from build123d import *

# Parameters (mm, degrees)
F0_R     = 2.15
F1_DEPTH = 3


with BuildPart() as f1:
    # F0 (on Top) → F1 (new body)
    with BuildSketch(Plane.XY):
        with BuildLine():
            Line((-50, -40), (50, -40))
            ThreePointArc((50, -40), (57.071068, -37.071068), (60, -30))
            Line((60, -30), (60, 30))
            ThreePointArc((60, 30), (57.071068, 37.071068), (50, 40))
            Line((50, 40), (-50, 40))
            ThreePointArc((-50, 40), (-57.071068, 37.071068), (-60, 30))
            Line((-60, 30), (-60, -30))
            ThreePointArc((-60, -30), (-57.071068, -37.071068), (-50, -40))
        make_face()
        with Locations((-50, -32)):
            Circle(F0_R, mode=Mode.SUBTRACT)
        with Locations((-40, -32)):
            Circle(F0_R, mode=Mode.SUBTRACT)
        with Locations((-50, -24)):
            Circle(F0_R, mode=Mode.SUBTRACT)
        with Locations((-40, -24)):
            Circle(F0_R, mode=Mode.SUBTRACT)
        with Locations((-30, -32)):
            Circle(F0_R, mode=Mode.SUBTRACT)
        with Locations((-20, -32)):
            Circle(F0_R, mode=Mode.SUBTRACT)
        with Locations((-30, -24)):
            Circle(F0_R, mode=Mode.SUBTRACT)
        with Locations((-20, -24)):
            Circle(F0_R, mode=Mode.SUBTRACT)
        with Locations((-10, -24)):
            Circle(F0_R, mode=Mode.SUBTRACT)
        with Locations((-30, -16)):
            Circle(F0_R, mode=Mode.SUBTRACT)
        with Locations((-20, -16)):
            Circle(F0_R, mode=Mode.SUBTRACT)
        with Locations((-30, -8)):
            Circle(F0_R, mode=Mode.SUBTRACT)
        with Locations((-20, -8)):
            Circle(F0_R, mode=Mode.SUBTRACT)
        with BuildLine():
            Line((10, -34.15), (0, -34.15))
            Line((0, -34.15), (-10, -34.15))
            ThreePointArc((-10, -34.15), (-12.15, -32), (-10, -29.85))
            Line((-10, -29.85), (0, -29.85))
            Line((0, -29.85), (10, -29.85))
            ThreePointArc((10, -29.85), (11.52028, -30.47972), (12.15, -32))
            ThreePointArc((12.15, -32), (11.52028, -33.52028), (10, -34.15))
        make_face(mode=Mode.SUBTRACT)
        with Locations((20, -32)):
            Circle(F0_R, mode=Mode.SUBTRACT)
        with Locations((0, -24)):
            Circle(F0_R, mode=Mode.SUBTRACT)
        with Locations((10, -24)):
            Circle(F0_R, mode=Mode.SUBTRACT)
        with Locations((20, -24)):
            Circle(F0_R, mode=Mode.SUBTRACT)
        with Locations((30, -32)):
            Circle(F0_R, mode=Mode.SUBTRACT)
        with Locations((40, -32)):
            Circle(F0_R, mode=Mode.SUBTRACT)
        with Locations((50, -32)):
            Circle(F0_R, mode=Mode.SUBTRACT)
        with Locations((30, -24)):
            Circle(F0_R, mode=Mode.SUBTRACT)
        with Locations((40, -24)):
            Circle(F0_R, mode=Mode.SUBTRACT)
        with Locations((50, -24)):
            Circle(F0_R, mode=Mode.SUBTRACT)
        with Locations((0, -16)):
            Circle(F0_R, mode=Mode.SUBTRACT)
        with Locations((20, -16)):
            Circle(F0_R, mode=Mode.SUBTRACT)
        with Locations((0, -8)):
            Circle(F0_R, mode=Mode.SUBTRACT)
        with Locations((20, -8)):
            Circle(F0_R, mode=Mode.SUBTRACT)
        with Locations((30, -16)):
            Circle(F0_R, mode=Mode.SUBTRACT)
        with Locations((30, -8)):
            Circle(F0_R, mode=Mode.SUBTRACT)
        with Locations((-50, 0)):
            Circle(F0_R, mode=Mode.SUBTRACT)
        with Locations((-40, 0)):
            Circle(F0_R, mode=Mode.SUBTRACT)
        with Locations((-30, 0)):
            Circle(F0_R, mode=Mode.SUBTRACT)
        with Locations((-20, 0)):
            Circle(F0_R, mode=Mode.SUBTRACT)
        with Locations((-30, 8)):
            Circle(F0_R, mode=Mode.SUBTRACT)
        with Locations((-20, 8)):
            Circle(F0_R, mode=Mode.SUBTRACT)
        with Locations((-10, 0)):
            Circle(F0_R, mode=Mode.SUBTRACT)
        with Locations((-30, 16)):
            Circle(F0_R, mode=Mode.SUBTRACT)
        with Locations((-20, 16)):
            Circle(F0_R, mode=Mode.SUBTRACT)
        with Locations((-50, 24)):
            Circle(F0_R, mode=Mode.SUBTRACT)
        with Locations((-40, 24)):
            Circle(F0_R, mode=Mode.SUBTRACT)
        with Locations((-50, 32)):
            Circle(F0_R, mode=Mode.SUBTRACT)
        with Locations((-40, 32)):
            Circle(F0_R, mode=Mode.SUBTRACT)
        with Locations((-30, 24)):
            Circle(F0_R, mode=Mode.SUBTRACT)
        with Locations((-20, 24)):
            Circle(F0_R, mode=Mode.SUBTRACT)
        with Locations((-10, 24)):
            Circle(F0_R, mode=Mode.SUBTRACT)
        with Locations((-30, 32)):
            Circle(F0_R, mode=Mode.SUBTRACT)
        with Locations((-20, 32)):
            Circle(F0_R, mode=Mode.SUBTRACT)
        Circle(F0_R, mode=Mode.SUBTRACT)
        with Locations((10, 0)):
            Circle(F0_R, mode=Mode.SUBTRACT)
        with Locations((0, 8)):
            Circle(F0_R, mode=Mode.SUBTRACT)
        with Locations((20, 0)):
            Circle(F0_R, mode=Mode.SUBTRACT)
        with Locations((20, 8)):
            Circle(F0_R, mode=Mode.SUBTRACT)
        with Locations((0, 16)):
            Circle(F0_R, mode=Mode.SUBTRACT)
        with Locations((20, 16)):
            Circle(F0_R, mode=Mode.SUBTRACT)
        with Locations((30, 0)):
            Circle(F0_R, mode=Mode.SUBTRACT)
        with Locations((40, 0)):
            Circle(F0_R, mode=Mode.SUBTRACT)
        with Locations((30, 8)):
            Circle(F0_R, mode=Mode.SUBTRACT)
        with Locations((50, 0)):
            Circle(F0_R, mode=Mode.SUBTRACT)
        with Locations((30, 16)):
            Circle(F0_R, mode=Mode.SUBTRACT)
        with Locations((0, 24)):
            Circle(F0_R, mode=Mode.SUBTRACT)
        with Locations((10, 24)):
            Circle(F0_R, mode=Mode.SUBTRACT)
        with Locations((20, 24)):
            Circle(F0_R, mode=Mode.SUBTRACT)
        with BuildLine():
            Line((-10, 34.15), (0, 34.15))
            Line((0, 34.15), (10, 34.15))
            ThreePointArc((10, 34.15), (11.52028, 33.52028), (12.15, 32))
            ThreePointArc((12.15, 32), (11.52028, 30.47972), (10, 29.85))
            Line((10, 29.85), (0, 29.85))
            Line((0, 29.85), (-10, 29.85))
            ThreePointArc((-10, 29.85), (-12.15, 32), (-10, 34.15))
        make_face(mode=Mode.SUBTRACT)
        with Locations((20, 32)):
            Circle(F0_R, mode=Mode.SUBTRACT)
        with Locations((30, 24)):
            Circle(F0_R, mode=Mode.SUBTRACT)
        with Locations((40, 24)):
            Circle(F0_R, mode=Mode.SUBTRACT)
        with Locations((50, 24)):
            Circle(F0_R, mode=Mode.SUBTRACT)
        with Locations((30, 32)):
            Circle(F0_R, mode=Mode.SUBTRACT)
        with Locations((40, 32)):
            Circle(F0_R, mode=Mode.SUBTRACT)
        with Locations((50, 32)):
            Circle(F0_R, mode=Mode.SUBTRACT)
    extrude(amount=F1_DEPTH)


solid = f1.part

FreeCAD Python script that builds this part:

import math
import FreeCAD as App
import Part
import Sketcher
from FreeCAD import Vector

doc = App.newDocument("Part")
params = doc.addObject("Spreadsheet::Sheet", "Params")
for row, (alias, value) in enumerate([
    ("sketch1_radius", "9.999999 mm"),
    ("sketch1_diameter", "4.3 mm"),
    ("sketch1_width", "100 mm"),
    ("sketch1_width2", "20 mm"),
    ("sketch1_height", "60 mm"),
    ("pad1_length", "3 mm"),
], start=1):
    params.set(f"A{row}", alias)
    params.set(f"B{row}", "=" + value)
    params.setAlias(f"B{row}", alias)

body = doc.addObject("PartDesign::Body", "Body")

# Sketch on XY plane
sketch1 = doc.addObject("Sketcher::SketchObject", "Sketch")
body.addObject(sketch1)
sketch1.AttachmentSupport = (doc.XY_Plane, [""])
sketch1.MapMode = "FlatFace"
sketch1.addGeometry([
    Part.LineSegment(Vector(-50, -40, 0), Vector(50, -40, 0)),  # 0
    Part.ArcOfCircle(Part.Circle(Vector(50, -30, 0), Vector(0, 0, 1), 10), math.radians(-90), math.radians(0)),  # 1
    Part.LineSegment(Vector(60, -30, 0), Vector(60, 30, 0)),  # 2
    Part.ArcOfCircle(Part.Circle(Vector(50, 30, 0), Vector(0, 0, 1), 10), math.radians(0), math.radians(90)),  # 3
    Part.LineSegment(Vector(50, 40, 0), Vector(-50, 40, 0)),  # 4
    Part.ArcOfCircle(Part.Circle(Vector(-50, 30, 0), Vector(0, 0, 1), 10), math.radians(90), math.radians(180)),  # 5
    Part.LineSegment(Vector(-60, 30, 0), Vector(-60, -30, 0)),  # 6
    Part.ArcOfCircle(Part.Circle(Vector(-50, -30, 0), Vector(0, 0, 1), 10), math.radians(180), math.radians(270)),  # 7
    Part.Circle(Vector(-50, -32, 0), Vector(0, 0, 1), 2.1),  # 8
    Part.Circle(Vector(-40, -32, 0), Vector(0, 0, 1), 2.1),  # 9
    Part.Circle(Vector(-30, -32, 0), Vector(0, 0, 1), 2.1),  # 10
    Part.Circle(Vector(-50, -24, 0), Vector(0, 0, 1), 2.1),  # 11
    Part.Circle(Vector(-40, -24, 0), Vector(0, 0, 1), 2.1),  # 12
    Part.Circle(Vector(-30, -24, 0), Vector(0, 0, 1), 2.1),  # 13
    Part.Circle(Vector(-20, -32, 0), Vector(0, 0, 1), 2.1),  # 14
    Part.Circle(Vector(-20, -24, 0), Vector(0, 0, 1), 2.1),  # 15
    Part.Circle(Vector(-10, -24, 0), Vector(0, 0, 1), 2.1),  # 16
    Part.Circle(Vector(-30, -16, 0), Vector(0, 0, 1), 2.1),  # 17
    Part.Circle(Vector(-30, -8, 0), Vector(0, 0, 1), 2.1),  # 18
    Part.Circle(Vector(-20, -16, 0), Vector(0, 0, 1), 2.1),  # 19
    Part.Circle(Vector(-20, -8, 0), Vector(0, 0, 1), 2.1),  # 20
    Part.ArcOfCircle(Part.Circle(Vector(10, -32, 0), Vector(0, 0, 1), 2.1), math.radians(-90), math.radians(0)),  # 21
    Part.LineSegment(Vector(10, -34.1, 0), Vector(-10, -34.1, 0)),  # 22
    Part.ArcOfCircle(Part.Circle(Vector(-10, -32, 0), Vector(0, 0, 1), 2.1), math.radians(90), math.radians(270)),  # 23
    Part.LineSegment(Vector(-10, -29.9, 0), Vector(10, -29.9, 0)),  # 24
    Part.ArcOfCircle(Part.Circle(Vector(10, -32, 0), Vector(0, 0, 1), 2.1), math.radians(0), math.radians(90)),  # 25
    Part.Circle(Vector(20, -32, 0), Vector(0, 0, 1), 2.1),  # 26
    Part.Circle(Vector(0, -24, 0), Vector(0, 0, 1), 2.1),  # 27
    Part.Circle(Vector(10, -24, 0), Vector(0, 0, 1), 2.1),  # 28
    Part.Circle(Vector(20, -24, 0), Vector(0, 0, 1), 2.1),  # 29
    Part.Circle(Vector(30, -32, 0), Vector(0, 0, 1), 2.1),  # 30
    Part.Circle(Vector(40, -32, 0), Vector(0, 0, 1), 2.1),  # 31
    Part.Circle(Vector(50, -32, 0), Vector(0, 0, 1), 2.1),  # 32
    Part.Circle(Vector(30, -24, 0), Vector(0, 0, 1), 2.1),  # 33
    Part.Circle(Vector(40, -24, 0), Vector(0, 0, 1), 2.1),  # 34
    Part.Circle(Vector(50, -24, 0), Vector(0, 0, 1), 2.1),  # 35
    Part.Circle(Vector(0, -16, 0), Vector(0, 0, 1), 2.1),  # 36
    Part.Circle(Vector(20, -16, 0), Vector(0, 0, 1), 2.1),  # 37
    Part.Circle(Vector(0, -8, 0), Vector(0, 0, 1), 2.1),  # 38
    Part.Circle(Vector(20, -8, 0), Vector(0, 0, 1), 2.1),  # 39
    Part.Circle(Vector(30, -16, 0), Vector(0, 0, 1), 2.1),  # 40
    Part.Circle(Vector(30, -8, 0), Vector(0, 0, 1), 2.1),  # 41
    Part.Circle(Vector(-50, 0, 0), Vector(0, 0, 1), 2.1),  # 42
    Part.Circle(Vector(-40, 0, 0), Vector(0, 0, 1), 2.1),  # 43
    Part.Circle(Vector(-30, 0, 0), Vector(0, 0, 1), 2.1),  # 44
    Part.Circle(Vector(-30, 8, 0), Vector(0, 0, 1), 2.1),  # 45
    Part.Circle(Vector(-30, 16, 0), Vector(0, 0, 1), 2.1),  # 46
    Part.Circle(Vector(-20, 0, 0), Vector(0, 0, 1), 2.1),  # 47
    Part.Circle(Vector(-20, 8, 0), Vector(0, 0, 1), 2.1),  # 48
    Part.Circle(Vector(-10, 0, 0), Vector(0, 0, 1), 2.1),  # 49
    Part.Circle(Vector(-20, 16, 0), Vector(0, 0, 1), 2.1),  # 50
    Part.Circle(Vector(-50, 24, 0), Vector(0, 0, 1), 2.1),  # 51
    Part.Circle(Vector(-40, 24, 0), Vector(0, 0, 1), 2.1),  # 52
    Part.Circle(Vector(-30, 24, 0), Vector(0, 0, 1), 2.1),  # 53
    Part.Circle(Vector(-50, 32, 0), Vector(0, 0, 1), 2.1),  # 54
    Part.Circle(Vector(-40, 32, 0), Vector(0, 0, 1), 2.1),  # 55
    Part.Circle(Vector(-30, 32, 0), Vector(0, 0, 1), 2.1),  # 56
    Part.Circle(Vector(-20, 24, 0), Vector(0, 0, 1), 2.1),  # 57
    Part.Circle(Vector(-10, 24, 0), Vector(0, 0, 1), 2.1),  # 58
    Part.Circle(Vector(-20, 32, 0), Vector(0, 0, 1), 2.1),  # 59
    Part.Circle(Vector(0, 0, 0), Vector(0, 0, 1), 2.1),  # 60
    Part.Circle(Vector(10, 0, 0), Vector(0, 0, 1), 2.1),  # 61
    Part.Circle(Vector(0, 8, 0), Vector(0, 0, 1), 2.1),  # 62
    Part.Circle(Vector(20, 0, 0), Vector(0, 0, 1), 2.1),  # 63
    Part.Circle(Vector(20, 8, 0), Vector(0, 0, 1), 2.1),  # 64
    Part.Circle(Vector(0, 16, 0), Vector(0, 0, 1), 2.1),  # 65
    Part.Circle(Vector(20, 16, 0), Vector(0, 0, 1), 2.1),  # 66
    Part.Circle(Vector(30, 0, 0), Vector(0, 0, 1), 2.1),  # 67
    Part.Circle(Vector(30, 8, 0), Vector(0, 0, 1), 2.1),  # 68
    Part.Circle(Vector(40, 0, 0), Vector(0, 0, 1), 2.1),  # 69
    Part.Circle(Vector(50, 0, 0), Vector(0, 0, 1), 2.1),  # 70
    Part.Circle(Vector(30, 16, 0), Vector(0, 0, 1), 2.1),  # 71
    Part.Circle(Vector(0, 24, 0), Vector(0, 0, 1), 2.1),  # 72
    Part.Circle(Vector(10, 24, 0), Vector(0, 0, 1), 2.1),  # 73
    Part.Circle(Vector(20, 24, 0), Vector(0, 0, 1), 2.1),  # 74
    Part.ArcOfCircle(Part.Circle(Vector(-10, 32, 0), Vector(0, 0, 1), 2.1), math.radians(90), math.radians(270)),  # 75
    Part.LineSegment(Vector(-10, 34.1, 0), Vector(10, 34.1, 0)),  # 76
    Part.ArcOfCircle(Part.Circle(Vector(10, 32, 0), Vector(0, 0, 1), 2.1), math.radians(0), math.radians(90)),  # 77
    Part.ArcOfCircle(Part.Circle(Vector(10, 32, 0), Vector(0, 0, 1), 2.1), math.radians(-90), math.radians(0)),  # 78
    Part.LineSegment(Vector(10, 29.9, 0), Vector(-10, 29.9, 0)),  # 79
    Part.Circle(Vector(20, 32, 0), Vector(0, 0, 1), 2.1),  # 80
    Part.Circle(Vector(30, 24, 0), Vector(0, 0, 1), 2.1),  # 81
    Part.Circle(Vector(40, 24, 0), Vector(0, 0, 1), 2.1),  # 82
    Part.Circle(Vector(50, 24, 0), Vector(0, 0, 1), 2.1),  # 83
    Part.Circle(Vector(30, 32, 0), Vector(0, 0, 1), 2.1),  # 84
    Part.Circle(Vector(40, 32, 0), Vector(0, 0, 1), 2.1),  # 85
    Part.Circle(Vector(50, 32, 0), Vector(0, 0, 1), 2.1),  # 86
], False)
sketch1.addConstraint([
    Sketcher.Constraint("Tangent", 0, 2, 1, 1),
    Sketcher.Constraint("Tangent", 1, 2, 2, 1),
    Sketcher.Constraint("Tangent", 2, 2, 3, 1),
    Sketcher.Constraint("Tangent", 3, 2, 4, 1),
    Sketcher.Constraint("Tangent", 4, 2, 5, 1),
    Sketcher.Constraint("Tangent", 5, 2, 6, 1),
    Sketcher.Constraint("Tangent", 6, 2, 7, 1),
    Sketcher.Constraint("Tangent", 7, 2, 0, 1),
    Sketcher.Constraint("Tangent", 21, 1, 22, 1),
    Sketcher.Constraint("Tangent", 22, 2, 23, 2),
    Sketcher.Constraint("Tangent", 23, 1, 24, 1),
    Sketcher.Constraint("Tangent", 24, 2, 25, 2),
    Sketcher.Constraint("Tangent", 25, 1, 21, 2),
    Sketcher.Constraint("Tangent", 75, 1, 76, 1),
    Sketcher.Constraint("Tangent", 76, 2, 77, 2),
    Sketcher.Constraint("Tangent", 77, 1, 78, 2),
    Sketcher.Constraint("Tangent", 78, 1, 79, 1),
    Sketcher.Constraint("Tangent", 79, 2, 75, 2),
    Sketcher.Constraint("Horizontal", 0),
    Sketcher.Constraint("Vertical", 2),
    Sketcher.Constraint("Horizontal", 4),
    Sketcher.Constraint("Vertical", 6),
    Sketcher.Constraint("Horizontal", 22),
    Sketcher.Constraint("Horizontal", 24),
    Sketcher.Constraint("Horizontal", 76),
    Sketcher.Constraint("Horizontal", 79),
    Sketcher.Constraint("Coincident", 60, 3, -1, 1),
    Sketcher.Constraint("Equal", 1, 3),
    Sketcher.Constraint("Equal", 3, 5),
    Sketcher.Constraint("Equal", 5, 7),
    Sketcher.Constraint("Equal", 8, 9),
    Sketcher.Constraint("Equal", 9, 10),
    Sketcher.Constraint("Equal", 10, 11),
    Sketcher.Constraint("Equal", 11, 12),
    Sketcher.Constraint("Equal", 12, 13),
    Sketcher.Constraint("Equal", 13, 14),
    Sketcher.Constraint("Equal", 14, 15),
    Sketcher.Constraint("Equal", 15, 16),
    Sketcher.Constraint("Equal", 16, 17),
    Sketcher.Constraint("Equal", 17, 18),
    Sketcher.Constraint("Equal", 18, 19),
    Sketcher.Constraint("Equal", 19, 20),
    Sketcher.Constraint("Equal", 20, 21),
    Sketcher.Constraint("Equal", 21, 23),
    Sketcher.Constraint("Equal", 25, 26),
    Sketcher.Constraint("Equal", 26, 27),
    Sketcher.Constraint("Equal", 27, 28),
    Sketcher.Constraint("Equal", 28, 29),
    Sketcher.Constraint("Equal", 29, 30),
    Sketcher.Constraint("Equal", 30, 31),
    Sketcher.Constraint("Equal", 31, 32),
    Sketcher.Constraint("Equal", 32, 33),
    Sketcher.Constraint("Equal", 33, 34),
    Sketcher.Constraint("Equal", 34, 35),
    Sketcher.Constraint("Equal", 35, 36),
    Sketcher.Constraint("Equal", 36, 37),
    Sketcher.Constraint("Equal", 37, 38),
    Sketcher.Constraint("Equal", 38, 39),
    Sketcher.Constraint("Equal", 39, 40),
    Sketcher.Constraint("Equal", 40, 41),
    Sketcher.Constraint("Equal", 41, 42),
    Sketcher.Constraint("Equal", 42, 43),
    Sketcher.Constraint("Equal", 43, 44),
    Sketcher.Constraint("Equal", 44, 45),
    Sketcher.Constraint("Equal", 45, 46),
    Sketcher.Constraint("Equal", 46, 47),
    Sketcher.Constraint("Equal", 47, 48),
    Sketcher.Constraint("Equal", 48, 49),
    Sketcher.Constraint("Equal", 49, 50),
    Sketcher.Constraint("Equal", 50, 51),
    Sketcher.Constraint("Equal", 51, 52),
    Sketcher.Constraint("Equal", 52, 53),
    Sketcher.Constraint("Equal", 53, 54),
    Sketcher.Constraint("Equal", 54, 55),
    Sketcher.Constraint("Equal", 55, 56),
    Sketcher.Constraint("Equal", 56, 57),
    Sketcher.Constraint("Equal", 57, 58),
    Sketcher.Constraint("Equal", 58, 59),
    Sketcher.Constraint("Equal", 59, 60),
    Sketcher.Constraint("Equal", 60, 61),
    Sketcher.Constraint("Equal", 61, 62),
    Sketcher.Constraint("Equal", 62, 63),
    Sketcher.Constraint("Equal", 63, 64),
    Sketcher.Constraint("Equal", 64, 65),
    Sketcher.Constraint("Equal", 65, 66),
    Sketcher.Constraint("Equal", 66, 67),
    Sketcher.Constraint("Equal", 67, 68),
    Sketcher.Constraint("Equal", 68, 69),
    Sketcher.Constraint("Equal", 69, 70),
    Sketcher.Constraint("Equal", 70, 71),
    Sketcher.Constraint("Equal", 71, 72),
    Sketcher.Constraint("Equal", 72, 73),
    Sketcher.Constraint("Equal", 73, 74),
    Sketcher.Constraint("Equal", 74, 75),
    Sketcher.Constraint("Equal", 75, 77),
    Sketcher.Constraint("Equal", 78, 80),
    Sketcher.Constraint("Equal", 80, 81),
    Sketcher.Constraint("Equal", 81, 82),
    Sketcher.Constraint("Equal", 82, 83),
    Sketcher.Constraint("Equal", 83, 84),
    Sketcher.Constraint("Equal", 84, 85),
    Sketcher.Constraint("Equal", 85, 86),
    Sketcher.Constraint("Symmetric", 1, 3, 5, 3, -1, 1),
    Sketcher.Constraint("Symmetric", 41, 3, 45, 3, -1, 1),
    Sketcher.Constraint("Symmetric", 40, 3, 46, 3, -1, 1),
    Sketcher.Constraint("Symmetric", 39, 3, 48, 3, -1, 1),
    Sketcher.Constraint("Symmetric", 37, 3, 50, 3, -1, 1),
    Sketcher.Constraint("Symmetric", 35, 3, 51, 3, -1, 1),
    Sketcher.Constraint("Symmetric", 34, 3, 52, 3, -1, 1),
    Sketcher.Constraint("Symmetric", 33, 3, 53, 3, -1, 1),
    Sketcher.Constraint("Symmetric", 32, 3, 54, 3, -1, 1),
    Sketcher.Constraint("Symmetric", 31, 3, 55, 3, -1, 1),
    Sketcher.Constraint("Symmetric", 30, 3, 56, 3, -1, 1),
    Sketcher.Constraint("Symmetric", 29, 3, 57, 3, -1, 1),
    Sketcher.Constraint("Symmetric", 28, 3, 58, 3, -1, 1),
    Sketcher.Constraint("Symmetric", 26, 3, 59, 3, -1, 1),
    Sketcher.Constraint("Symmetric", 49, 3, 61, 3, -1, 1),
    Sketcher.Constraint("Symmetric", 38, 3, 62, 3, -1, 1),
    Sketcher.Constraint("Symmetric", 47, 3, 63, 3, -1, 1),
    Sketcher.Constraint("Symmetric", 20, 3, 64, 3, -1, 1),
    Sketcher.Constraint("Symmetric", 36, 3, 65, 3, -1, 1),
    Sketcher.Constraint("Symmetric", 19, 3, 66, 3, -1, 1),
    Sketcher.Constraint("Symmetric", 44, 3, 67, 3, -1, 1),
    Sketcher.Constraint("Symmetric", 18, 3, 68, 3, -1, 1),
    Sketcher.Constraint("Symmetric", 43, 3, 69, 3, -1, 1),
    Sketcher.Constraint("Symmetric", 42, 3, 70, 3, -1, 1),
    Sketcher.Constraint("Symmetric", 17, 3, 71, 3, -1, 1),
    Sketcher.Constraint("Symmetric", 27, 3, 72, 3, -1, 1),
    Sketcher.Constraint("Symmetric", 16, 3, 73, 3, -1, 1),
    Sketcher.Constraint("Symmetric", 15, 3, 74, 3, -1, 1),
    Sketcher.Constraint("Symmetric", 21, 3, 75, 3, -1, 1),
    Sketcher.Constraint("Symmetric", 14, 3, 80, 3, -1, 1),
    Sketcher.Constraint("Symmetric", 13, 3, 81, 3, -1, 1),
    Sketcher.Constraint("Symmetric", 12, 3, 82, 3, -1, 1),
    Sketcher.Constraint("Symmetric", 11, 3, 83, 3, -1, 1),
    Sketcher.Constraint("Symmetric", 10, 3, 84, 3, -1, 1),
    Sketcher.Constraint("Symmetric", 9, 3, 85, 3, -1, 1),
    Sketcher.Constraint("Symmetric", 8, 3, 86, 3, -1, 1),
    Sketcher.Constraint("Symmetric", 14, 3, 26, 3, -2),
    Sketcher.Constraint("Symmetric", 16, 3, 28, 3, -2),
    Sketcher.Constraint("Symmetric", 15, 3, 29, 3, -2),
    Sketcher.Constraint("Symmetric", 10, 3, 30, 3, -2),
    Sketcher.Constraint("Symmetric", 9, 3, 31, 3, -2),
    Sketcher.Constraint("Symmetric", 8, 3, 32, 3, -2),
    Sketcher.Constraint("Symmetric", 13, 3, 33, 3, -2),
    Sketcher.Constraint("Symmetric", 12, 3, 34, 3, -2),
    Sketcher.Constraint("Symmetric", 11, 3, 35, 3, -2),
    Sketcher.Constraint("Symmetric", 19, 3, 37, 3, -2),
    Sketcher.Constraint("Symmetric", 20, 3, 39, 3, -2),
    Sketcher.Constraint("Symmetric", 17, 3, 40, 3, -2),
    Sketcher.Constraint("Symmetric", 18, 3, 41, 3, -2),
    Sketcher.Constraint("Symmetric", 25, 1, 77, 1, -1),
    Sketcher.Constraint("PointOnObject", 27, 3, -2),
    Sketcher.Constraint("PointOnObject", 36, 3, -2),
    Sketcher.Constraint("PointOnObject", 38, 3, -2),
    Sketcher.Constraint("PointOnObject", 42, 3, -1),
    Sketcher.Constraint("PointOnObject", 43, 3, -1),
    Sketcher.Constraint("PointOnObject", 44, 3, -1),
    Sketcher.Constraint("PointOnObject", 47, 3, -1),
    Sketcher.Constraint("PointOnObject", 49, 3, -1),
    Sketcher.Constraint("Horizontal", 8, 3, 9, 3),
    Sketcher.Constraint("Horizontal", 9, 3, 10, 3),
    Sketcher.Constraint("Horizontal", 11, 3, 12, 3),
    Sketcher.Constraint("Horizontal", 12, 3, 13, 3),
    Sketcher.Constraint("Horizontal", 10, 3, 14, 3),
    Sketcher.Constraint("Horizontal", 13, 3, 15, 3),
    Sketcher.Constraint("Horizontal", 15, 3, 16, 3),
    Sketcher.Constraint("Horizontal", 17, 3, 19, 3),
    Sketcher.Constraint("Horizontal", 18, 3, 20, 3),
    Sketcher.Constraint("Horizontal", 14, 3, 21, 3),
    Sketcher.Constraint("Horizontal", 16, 3, 27, 3),
    Sketcher.Constraint("Horizontal", 19, 3, 36, 3),
    Sketcher.Constraint("Horizontal", 20, 3, 38, 3),
    Sketcher.Constraint("Horizontal", 32, 3, 25, 1),
    Sketcher.Constraint("Vertical", 7, 3, 8, 3),
    Sketcher.Constraint("Vertical", 8, 3, 11, 3),
    Sketcher.Constraint("Vertical", 9, 3, 12, 3),
    Sketcher.Constraint("Vertical", 10, 3, 13, 3),
    Sketcher.Constraint("Vertical", 14, 3, 15, 3),
    Sketcher.Constraint("Vertical", 13, 3, 17, 3),
    Sketcher.Constraint("Vertical", 17, 3, 18, 3),
    Sketcher.Constraint("Vertical", 15, 3, 19, 3),
    Sketcher.Constraint("Vertical", 19, 3, 20, 3),
    Sketcher.Constraint("Vertical", 16, 3, 23, 3),
    Sketcher.Constraint("Vertical", 25, 3, 28, 3),
    Sketcher.Constraint("Vertical", 11, 3, 42, 3),
    Sketcher.Constraint("Vertical", 12, 3, 43, 3),
    Sketcher.Constraint("Vertical", 18, 3, 44, 3),
    Sketcher.Constraint("Vertical", 20, 3, 47, 3),
    Sketcher.Constraint("Vertical", 23, 3, 49, 3),
    Sketcher.Constraint("Radius", 1, 9.999999),
    Sketcher.Constraint("Diameter", 8, 4.3),
    Sketcher.Constraint("DistanceX", 0, 1, 0, 2, 100.0),
    Sketcher.Constraint("DistanceX", 22, 2, 22, 1, 20.0),
    Sketcher.Constraint("DistanceY", 2, 1, 2, 2, 60.0),
    Sketcher.Constraint("DistanceY", 8, 3, -1, 1, 32.0),
    Sketcher.Constraint("DistanceX", 9, 3, -1, 1, 40.0),
    Sketcher.Constraint("DistanceX", 10, 3, -1, 1, 30.0),
    Sketcher.Constraint("DistanceY", 11, 3, -1, 1, 24.0),
    Sketcher.Constraint("DistanceX", 14, 3, -1, 1, 20.0),
    Sketcher.Constraint("DistanceY", 17, 3, -1, 1, 16.0),
    Sketcher.Constraint("DistanceY", 18, 3, -1, 1, 8.0),
])
sketch1.setExpression("Constraints[190]", "Params.sketch1_radius")
sketch1.setExpression("Constraints[191]", "Params.sketch1_diameter")
sketch1.setExpression("Constraints[192]", "Params.sketch1_width")
sketch1.setExpression("Constraints[193]", "Params.sketch1_width2")
sketch1.setExpression("Constraints[194]", "Params.sketch1_height")
pad1 = doc.addObject("PartDesign::Pad", "Pad")
body.addObject(pad1)
pad1.Profile = sketch1
pad1.setExpression("Length", "Params.pad1_length")

doc.recompute()
